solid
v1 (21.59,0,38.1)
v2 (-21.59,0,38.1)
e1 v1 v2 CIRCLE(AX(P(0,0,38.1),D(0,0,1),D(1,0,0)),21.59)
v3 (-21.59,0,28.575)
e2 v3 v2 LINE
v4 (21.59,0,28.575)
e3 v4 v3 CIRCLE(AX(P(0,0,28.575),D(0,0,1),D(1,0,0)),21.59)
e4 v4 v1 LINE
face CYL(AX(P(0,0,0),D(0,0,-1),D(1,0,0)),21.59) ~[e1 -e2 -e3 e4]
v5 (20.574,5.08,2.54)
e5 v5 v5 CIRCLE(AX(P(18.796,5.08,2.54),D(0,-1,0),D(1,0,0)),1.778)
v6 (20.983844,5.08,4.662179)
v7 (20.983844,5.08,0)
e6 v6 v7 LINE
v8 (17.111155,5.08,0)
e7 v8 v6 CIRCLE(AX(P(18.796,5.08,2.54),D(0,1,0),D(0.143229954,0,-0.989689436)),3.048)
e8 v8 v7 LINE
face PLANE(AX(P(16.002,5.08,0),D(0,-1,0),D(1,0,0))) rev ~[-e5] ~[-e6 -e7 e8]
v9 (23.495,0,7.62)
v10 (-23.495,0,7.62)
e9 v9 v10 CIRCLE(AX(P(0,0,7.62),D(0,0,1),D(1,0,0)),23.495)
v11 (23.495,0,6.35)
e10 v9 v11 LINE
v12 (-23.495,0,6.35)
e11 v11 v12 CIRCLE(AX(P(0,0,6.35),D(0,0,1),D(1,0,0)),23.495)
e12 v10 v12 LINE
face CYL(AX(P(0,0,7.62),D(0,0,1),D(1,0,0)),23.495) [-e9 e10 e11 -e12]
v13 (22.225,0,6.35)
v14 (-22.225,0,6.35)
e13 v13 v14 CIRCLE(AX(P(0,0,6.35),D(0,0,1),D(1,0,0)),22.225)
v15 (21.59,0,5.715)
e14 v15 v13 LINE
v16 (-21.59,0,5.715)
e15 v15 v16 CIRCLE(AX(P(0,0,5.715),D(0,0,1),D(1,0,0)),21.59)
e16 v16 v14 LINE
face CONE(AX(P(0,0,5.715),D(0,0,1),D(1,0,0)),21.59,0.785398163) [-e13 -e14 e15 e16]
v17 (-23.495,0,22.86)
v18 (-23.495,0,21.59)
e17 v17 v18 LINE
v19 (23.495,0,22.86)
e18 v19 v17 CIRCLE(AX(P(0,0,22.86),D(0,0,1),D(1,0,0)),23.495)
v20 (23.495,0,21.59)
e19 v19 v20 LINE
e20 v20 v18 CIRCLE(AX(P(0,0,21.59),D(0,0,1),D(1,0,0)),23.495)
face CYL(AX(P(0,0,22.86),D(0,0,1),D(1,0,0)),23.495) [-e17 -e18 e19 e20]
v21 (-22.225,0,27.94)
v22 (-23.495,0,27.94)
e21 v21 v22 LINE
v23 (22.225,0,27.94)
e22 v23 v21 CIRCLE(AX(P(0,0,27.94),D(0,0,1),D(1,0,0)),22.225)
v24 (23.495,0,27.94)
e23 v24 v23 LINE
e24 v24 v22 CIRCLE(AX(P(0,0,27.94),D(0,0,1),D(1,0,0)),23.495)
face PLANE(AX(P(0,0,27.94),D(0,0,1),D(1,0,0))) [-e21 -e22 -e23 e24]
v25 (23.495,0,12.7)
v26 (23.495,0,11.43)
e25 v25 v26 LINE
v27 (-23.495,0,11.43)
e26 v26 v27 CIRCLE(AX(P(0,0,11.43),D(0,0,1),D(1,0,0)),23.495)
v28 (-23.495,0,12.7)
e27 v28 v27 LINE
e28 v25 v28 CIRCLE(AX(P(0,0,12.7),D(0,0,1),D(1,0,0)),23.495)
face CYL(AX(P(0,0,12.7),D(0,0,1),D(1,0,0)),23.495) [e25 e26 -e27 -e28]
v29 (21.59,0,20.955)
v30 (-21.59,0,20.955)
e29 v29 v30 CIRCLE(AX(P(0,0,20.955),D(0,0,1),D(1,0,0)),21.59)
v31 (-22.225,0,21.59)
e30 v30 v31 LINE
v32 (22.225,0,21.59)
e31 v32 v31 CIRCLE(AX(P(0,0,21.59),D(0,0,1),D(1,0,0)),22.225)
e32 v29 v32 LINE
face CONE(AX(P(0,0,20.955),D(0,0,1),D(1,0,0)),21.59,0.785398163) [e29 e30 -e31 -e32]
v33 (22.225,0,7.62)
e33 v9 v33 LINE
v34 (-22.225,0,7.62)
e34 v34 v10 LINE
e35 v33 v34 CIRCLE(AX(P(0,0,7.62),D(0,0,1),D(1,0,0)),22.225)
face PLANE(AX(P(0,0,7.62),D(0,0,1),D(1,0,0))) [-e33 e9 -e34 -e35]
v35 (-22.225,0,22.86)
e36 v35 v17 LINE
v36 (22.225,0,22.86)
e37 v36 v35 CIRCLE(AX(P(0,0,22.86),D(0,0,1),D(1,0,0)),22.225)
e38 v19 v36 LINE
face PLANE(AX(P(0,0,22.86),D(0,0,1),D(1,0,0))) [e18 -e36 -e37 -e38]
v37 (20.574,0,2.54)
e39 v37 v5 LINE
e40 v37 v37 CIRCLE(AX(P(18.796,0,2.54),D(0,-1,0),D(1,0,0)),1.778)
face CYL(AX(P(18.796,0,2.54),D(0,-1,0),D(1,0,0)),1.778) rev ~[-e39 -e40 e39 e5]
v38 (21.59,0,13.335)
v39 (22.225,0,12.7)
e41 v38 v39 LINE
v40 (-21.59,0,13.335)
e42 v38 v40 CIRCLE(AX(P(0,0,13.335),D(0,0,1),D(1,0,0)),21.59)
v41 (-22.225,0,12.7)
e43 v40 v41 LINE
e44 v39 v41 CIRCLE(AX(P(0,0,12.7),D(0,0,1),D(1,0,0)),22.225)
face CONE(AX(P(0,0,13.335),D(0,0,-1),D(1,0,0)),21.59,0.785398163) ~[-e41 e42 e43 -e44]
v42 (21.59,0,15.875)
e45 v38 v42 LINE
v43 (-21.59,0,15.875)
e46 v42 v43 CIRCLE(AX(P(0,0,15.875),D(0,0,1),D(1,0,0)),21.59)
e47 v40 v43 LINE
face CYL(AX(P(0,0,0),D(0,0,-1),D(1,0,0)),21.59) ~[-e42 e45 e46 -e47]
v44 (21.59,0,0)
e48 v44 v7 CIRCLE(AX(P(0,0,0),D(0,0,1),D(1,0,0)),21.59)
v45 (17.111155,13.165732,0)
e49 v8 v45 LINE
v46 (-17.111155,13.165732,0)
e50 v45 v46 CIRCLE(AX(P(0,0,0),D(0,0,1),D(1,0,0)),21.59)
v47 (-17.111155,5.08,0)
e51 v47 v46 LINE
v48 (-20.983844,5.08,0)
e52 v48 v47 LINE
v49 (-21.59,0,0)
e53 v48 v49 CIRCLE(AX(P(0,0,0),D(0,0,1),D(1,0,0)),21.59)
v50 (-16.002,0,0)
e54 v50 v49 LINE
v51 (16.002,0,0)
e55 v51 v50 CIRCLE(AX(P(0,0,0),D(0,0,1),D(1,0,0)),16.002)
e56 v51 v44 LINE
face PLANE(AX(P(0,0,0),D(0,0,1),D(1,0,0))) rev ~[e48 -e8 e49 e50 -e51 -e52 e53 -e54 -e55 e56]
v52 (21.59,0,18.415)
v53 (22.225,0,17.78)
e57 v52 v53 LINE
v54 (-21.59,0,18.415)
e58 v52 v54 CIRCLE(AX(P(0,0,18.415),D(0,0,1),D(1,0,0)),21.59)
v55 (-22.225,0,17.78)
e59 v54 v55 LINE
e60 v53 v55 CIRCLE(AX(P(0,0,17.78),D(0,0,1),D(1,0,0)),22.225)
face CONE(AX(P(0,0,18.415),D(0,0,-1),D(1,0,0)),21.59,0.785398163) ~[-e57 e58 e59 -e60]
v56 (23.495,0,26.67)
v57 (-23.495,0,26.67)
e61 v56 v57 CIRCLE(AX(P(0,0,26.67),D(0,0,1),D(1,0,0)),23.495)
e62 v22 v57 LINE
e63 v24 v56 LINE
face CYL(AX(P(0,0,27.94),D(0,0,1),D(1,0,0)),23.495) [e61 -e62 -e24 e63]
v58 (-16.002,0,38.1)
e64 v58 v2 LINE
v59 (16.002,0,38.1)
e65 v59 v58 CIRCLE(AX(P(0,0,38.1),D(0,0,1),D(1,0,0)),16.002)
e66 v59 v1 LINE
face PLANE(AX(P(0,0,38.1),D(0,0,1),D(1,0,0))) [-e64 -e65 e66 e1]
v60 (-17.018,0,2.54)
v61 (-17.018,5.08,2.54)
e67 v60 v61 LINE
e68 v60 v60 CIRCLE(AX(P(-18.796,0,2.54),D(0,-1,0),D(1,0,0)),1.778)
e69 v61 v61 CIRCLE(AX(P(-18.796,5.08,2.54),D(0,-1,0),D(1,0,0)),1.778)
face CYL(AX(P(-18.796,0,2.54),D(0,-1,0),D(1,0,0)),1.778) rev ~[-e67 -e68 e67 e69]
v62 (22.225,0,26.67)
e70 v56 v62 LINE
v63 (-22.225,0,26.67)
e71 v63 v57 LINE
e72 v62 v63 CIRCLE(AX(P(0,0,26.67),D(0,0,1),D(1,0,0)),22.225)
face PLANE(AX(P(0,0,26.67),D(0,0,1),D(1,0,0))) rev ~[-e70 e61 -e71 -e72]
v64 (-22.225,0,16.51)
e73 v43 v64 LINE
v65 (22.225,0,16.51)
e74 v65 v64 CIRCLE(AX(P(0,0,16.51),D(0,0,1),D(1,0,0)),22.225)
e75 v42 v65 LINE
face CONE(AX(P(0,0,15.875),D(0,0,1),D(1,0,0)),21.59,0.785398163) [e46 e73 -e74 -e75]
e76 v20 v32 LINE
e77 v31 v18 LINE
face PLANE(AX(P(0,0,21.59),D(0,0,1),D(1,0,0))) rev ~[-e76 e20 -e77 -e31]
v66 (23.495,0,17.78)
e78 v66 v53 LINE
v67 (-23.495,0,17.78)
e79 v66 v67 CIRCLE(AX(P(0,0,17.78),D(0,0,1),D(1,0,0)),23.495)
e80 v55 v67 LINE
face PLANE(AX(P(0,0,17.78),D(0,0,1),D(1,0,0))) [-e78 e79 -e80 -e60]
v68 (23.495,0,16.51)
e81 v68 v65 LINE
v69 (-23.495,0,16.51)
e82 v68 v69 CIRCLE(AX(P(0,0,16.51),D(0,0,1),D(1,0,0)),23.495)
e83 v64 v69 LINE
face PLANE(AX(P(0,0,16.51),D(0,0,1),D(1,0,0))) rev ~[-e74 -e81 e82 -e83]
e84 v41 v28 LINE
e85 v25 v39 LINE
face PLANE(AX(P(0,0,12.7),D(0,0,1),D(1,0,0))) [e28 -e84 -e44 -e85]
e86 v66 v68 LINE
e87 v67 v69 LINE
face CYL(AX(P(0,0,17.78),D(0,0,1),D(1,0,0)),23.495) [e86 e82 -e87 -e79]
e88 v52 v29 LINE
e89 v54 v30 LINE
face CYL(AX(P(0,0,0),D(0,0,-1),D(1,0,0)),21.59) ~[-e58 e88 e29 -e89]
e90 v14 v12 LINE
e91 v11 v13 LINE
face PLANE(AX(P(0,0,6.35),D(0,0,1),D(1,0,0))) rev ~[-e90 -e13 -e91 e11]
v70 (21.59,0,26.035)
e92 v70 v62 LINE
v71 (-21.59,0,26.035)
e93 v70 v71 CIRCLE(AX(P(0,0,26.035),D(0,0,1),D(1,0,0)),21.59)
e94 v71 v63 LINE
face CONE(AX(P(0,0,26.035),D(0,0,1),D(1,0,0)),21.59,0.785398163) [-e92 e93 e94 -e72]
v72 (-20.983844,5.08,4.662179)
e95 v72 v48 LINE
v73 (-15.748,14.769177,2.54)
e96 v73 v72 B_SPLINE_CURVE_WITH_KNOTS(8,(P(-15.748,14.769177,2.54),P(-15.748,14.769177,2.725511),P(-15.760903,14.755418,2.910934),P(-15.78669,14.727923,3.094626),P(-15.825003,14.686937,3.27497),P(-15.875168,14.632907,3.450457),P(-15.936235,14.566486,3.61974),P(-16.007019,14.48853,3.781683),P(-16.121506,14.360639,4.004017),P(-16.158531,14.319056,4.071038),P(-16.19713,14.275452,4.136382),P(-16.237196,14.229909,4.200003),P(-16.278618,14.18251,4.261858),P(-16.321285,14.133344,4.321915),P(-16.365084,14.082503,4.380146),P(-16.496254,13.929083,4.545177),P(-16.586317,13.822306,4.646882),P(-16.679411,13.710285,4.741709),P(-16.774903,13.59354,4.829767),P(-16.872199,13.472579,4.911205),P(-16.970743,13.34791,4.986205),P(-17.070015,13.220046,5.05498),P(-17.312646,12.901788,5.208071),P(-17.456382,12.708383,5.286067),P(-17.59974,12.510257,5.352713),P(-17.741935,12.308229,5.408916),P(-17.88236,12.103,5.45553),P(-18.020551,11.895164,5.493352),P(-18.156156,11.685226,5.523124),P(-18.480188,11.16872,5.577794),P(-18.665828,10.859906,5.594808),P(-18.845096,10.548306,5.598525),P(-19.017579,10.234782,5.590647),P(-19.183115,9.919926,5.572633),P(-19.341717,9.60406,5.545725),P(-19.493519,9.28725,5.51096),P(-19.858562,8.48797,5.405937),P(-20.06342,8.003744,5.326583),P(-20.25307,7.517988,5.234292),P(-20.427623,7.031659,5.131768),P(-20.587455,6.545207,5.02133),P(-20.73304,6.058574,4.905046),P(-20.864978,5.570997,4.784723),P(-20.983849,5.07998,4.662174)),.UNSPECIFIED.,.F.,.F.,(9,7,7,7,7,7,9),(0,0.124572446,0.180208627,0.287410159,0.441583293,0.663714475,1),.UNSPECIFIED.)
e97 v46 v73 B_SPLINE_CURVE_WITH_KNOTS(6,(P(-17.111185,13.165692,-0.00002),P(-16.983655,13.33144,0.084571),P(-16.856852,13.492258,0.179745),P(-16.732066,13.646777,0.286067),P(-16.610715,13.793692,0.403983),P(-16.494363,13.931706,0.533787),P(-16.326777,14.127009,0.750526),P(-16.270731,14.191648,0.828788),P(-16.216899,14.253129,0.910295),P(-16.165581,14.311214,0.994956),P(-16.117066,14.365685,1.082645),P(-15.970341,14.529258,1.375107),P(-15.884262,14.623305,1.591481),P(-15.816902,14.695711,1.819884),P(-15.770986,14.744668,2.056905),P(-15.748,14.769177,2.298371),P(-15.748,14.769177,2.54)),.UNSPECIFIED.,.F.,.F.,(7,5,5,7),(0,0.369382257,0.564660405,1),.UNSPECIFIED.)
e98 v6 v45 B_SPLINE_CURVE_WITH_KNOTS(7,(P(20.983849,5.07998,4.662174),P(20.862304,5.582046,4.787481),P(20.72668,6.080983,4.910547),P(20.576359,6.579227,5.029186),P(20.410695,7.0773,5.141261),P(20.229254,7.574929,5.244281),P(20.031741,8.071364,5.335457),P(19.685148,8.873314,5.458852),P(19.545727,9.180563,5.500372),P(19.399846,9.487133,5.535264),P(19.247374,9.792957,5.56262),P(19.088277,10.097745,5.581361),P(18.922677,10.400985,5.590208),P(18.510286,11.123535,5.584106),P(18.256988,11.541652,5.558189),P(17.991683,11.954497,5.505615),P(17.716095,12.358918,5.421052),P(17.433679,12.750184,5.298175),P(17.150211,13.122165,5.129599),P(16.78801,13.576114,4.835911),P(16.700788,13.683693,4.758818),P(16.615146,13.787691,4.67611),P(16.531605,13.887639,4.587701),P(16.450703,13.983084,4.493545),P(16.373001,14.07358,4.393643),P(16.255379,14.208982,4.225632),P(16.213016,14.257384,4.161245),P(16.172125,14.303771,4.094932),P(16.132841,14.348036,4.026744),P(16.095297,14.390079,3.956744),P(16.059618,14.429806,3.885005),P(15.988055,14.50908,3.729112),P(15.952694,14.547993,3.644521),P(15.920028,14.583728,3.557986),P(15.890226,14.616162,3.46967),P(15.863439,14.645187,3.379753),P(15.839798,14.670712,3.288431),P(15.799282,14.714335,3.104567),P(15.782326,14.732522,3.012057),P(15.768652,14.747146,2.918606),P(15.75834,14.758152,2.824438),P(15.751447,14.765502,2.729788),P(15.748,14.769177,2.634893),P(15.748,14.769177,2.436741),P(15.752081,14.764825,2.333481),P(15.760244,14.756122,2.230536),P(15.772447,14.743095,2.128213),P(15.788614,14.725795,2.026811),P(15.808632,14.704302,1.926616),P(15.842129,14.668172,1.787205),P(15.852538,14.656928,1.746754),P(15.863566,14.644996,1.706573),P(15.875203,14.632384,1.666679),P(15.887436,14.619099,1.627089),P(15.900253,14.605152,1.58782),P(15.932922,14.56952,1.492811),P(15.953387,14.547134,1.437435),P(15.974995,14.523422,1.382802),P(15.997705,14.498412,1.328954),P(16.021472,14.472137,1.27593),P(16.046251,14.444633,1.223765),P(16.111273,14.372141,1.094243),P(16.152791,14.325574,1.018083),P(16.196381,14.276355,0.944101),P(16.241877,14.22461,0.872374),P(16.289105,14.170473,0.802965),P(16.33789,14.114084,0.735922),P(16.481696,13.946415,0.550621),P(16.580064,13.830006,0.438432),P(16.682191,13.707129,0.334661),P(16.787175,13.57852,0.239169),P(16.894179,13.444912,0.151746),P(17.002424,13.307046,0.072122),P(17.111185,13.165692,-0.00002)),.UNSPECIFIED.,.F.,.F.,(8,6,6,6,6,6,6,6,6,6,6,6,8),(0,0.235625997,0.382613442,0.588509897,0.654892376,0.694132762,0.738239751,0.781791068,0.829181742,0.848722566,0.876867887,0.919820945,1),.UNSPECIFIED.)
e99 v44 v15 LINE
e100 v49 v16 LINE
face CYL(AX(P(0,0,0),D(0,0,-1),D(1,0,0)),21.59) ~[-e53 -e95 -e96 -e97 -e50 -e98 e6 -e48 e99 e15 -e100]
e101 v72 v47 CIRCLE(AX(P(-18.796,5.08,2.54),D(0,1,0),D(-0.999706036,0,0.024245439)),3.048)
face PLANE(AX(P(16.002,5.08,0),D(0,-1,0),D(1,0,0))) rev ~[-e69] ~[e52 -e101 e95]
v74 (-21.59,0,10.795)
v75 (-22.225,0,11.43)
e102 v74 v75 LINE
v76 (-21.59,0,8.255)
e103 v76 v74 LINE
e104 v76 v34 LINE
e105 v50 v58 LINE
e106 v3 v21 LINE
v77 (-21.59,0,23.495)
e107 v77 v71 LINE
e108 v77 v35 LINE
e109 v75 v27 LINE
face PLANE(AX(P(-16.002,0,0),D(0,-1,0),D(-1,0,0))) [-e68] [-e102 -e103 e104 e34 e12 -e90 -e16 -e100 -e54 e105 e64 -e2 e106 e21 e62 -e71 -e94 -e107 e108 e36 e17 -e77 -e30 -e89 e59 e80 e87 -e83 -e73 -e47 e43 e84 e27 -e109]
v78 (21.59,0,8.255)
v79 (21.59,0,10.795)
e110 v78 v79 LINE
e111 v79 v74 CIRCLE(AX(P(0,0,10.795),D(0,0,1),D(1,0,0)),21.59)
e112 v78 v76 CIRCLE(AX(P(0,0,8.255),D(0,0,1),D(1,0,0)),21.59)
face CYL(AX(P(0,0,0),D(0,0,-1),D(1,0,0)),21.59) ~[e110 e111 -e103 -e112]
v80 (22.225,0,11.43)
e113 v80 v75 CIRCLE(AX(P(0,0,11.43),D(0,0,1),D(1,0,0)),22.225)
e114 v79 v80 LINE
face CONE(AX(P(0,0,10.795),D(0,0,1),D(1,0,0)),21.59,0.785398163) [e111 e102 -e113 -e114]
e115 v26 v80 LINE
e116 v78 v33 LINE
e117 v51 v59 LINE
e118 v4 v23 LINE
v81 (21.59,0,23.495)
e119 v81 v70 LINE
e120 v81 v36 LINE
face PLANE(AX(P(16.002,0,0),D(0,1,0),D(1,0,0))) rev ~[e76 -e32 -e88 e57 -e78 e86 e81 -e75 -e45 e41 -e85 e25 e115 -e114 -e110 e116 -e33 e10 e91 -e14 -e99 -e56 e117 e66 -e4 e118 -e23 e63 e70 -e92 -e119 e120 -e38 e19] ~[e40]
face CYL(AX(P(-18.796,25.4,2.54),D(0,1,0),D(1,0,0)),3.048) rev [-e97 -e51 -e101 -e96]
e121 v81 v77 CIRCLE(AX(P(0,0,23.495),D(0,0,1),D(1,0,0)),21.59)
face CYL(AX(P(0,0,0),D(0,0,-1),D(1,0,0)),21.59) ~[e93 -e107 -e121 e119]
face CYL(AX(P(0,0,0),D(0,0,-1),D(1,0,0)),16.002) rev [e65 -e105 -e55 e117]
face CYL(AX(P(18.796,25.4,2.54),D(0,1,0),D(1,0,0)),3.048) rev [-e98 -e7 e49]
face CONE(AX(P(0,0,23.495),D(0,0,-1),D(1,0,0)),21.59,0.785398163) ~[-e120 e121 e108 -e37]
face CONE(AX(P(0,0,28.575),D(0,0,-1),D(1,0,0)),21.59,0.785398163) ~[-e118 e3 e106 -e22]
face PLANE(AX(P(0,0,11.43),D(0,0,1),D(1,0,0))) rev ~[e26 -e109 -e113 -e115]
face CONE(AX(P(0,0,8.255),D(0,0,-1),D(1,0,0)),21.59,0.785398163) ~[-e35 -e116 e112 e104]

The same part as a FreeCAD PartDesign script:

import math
import FreeCAD as App
import Part
import Sketcher

V = App.Vector
Q = App.Units.Quantity


def edges_at(feature, points):
    """Names of the edges that pass closest to the given points."""
    edges = feature.Shape.Edges
    near = lambda p: min(range(len(edges)), key=lambda i: edges[i].distToShape(Part.Vertex(*p))[0])
    return sorted({f"Edge{near(p) + 1}" for p in points})

doc = App.newDocument("Part")
body = doc.addObject("PartDesign::Body", "Body")

sketch1 = body.newObject("Sketcher::SketchObject", "Sketch")
sketch1.AttachmentSupport = (doc.getObject("XY_Plane"), [""])
sketch1.MapMode = "FlatFace"
sketch1.addGeometry(Part.ArcOfCircle(Part.Circle(V(0, 0, 0), V(0, 0, 1), 16), math.radians(0), math.radians(180)), False)
sketch1.addGeometry(Part.LineSegment(V(16, 0, 0), V(22, 0, 0)), False)
sketch1.addGeometry(Part.ArcOfCircle(Part.Circle(V(0, 0, 0), V(0, 0, 1), 22), math.radians(0), math.radians(180)), False)
sketch1.addGeometry(Part.LineSegment(V(-22, 0, 0), V(-16, 0, 0)), False)
sketch1.addConstraint(Sketcher.Constraint("Coincident", 0, 1, 1, 1))
sketch1.addConstraint(Sketcher.Constraint("Coincident", 1, 2, 2, 1))
sketch1.addConstraint(Sketcher.Constraint("Coincident", 2, 2, 3, 1))
sketch1.addConstraint(Sketcher.Constraint("Coincident", 3, 2, 0, 2))
sketch1.addConstraint(Sketcher.Constraint("Horizontal", 1))
sketch1.addConstraint(Sketcher.Constraint("Horizontal", 3))
sketch1.addConstraint(Sketcher.Constraint("Coincident", 0, 3, -1, 1))
sketch1.addConstraint(Sketcher.Constraint("Coincident", 2, 3, -1, 1))
sketch1.addConstraint(Sketcher.Constraint("PointOnObject", 0, 1, -1))
sketch1.addConstraint(Sketcher.Constraint("PointOnObject", 2, 2, -1))
sketch1.addConstraint(Sketcher.Constraint("Radius", 0, Q("0.63 in")))
sketch1.addConstraint(Sketcher.Constraint("Radius", 2, Q("0.85 in")))
pad1 = body.newObject("PartDesign::Pad", "Pad")
pad1.Profile = sketch1
pad1.Length = Q("1.5 in")

sketch2 = body.newObject("Sketcher::SketchObject", "Sketch001")
sketch2.AttachmentSupport = (doc.getObject("XY_Plane"), [""])
sketch2.MapMode = "FlatFace"
sketch2.AttachmentOffset = App.Placement(V(0, 0, 1.1 * 25.4), App.Rotation())
sketch2.addGeometry(Part.ArcOfCircle(Part.Circle(V(0, 0, 0), V(0, 0, 1), 21.6), math.radians(0), math.radians(180)), False)
sketch2.addGeometry(Part.LineSegment(V(21.6, 0, 0), V(23.5, 0, 0)), False)
sketch2.addGeometry(Part.ArcOfCircle(Part.Circle(V(0, 0, 0), V(0, 0, 1), 23.5), math.radians(0), math.radians(180)), False)
sketch2.addGeometry(Part.LineSegment(V(-23.5, 0, 0), V(-21.6, 0, 0)), False)
sketch2.addConstraint(Sketcher.Constraint("Coincident", 0, 1, 1, 1))
sketch2.addConstraint(Sketcher.Constraint("Coincident", 1, 2, 2, 1))
sketch2.addConstraint(Sketcher.Constraint("Coincident", 2, 2, 3, 1))
sketch2.addConstraint(Sketcher.Constraint("Coincident", 3, 2, 0, 2))
sketch2.addConstraint(Sketcher.Constraint("Horizontal", 1))
sketch2.addConstraint(Sketcher.Constraint("Horizontal", 3))
sketch2.addConstraint(Sketcher.Constraint("Coincident", 0, 3, -1, 1))
sketch2.addConstraint(Sketcher.Constraint("Coincident", 2, 3, -1, 1))
sketch2.addConstraint(Sketcher.Constraint("PointOnObject", 0, 1, -1))
sketch2.addConstraint(Sketcher.Constraint("PointOnObject", 2, 2, -1))
sketch2.addConstraint(Sketcher.Constraint("DistanceX", 1, 1, 1, 2, Q("0.075 in")))
sketch2.addConstraint(Sketcher.Constraint("Radius", 0, Q("0.85 in")))
pad2 = body.newObject("PartDesign::Pad", "Pad001")
pad2.Profile = sketch2
pad2.Length = Q("0.05 in")
pad2.Reversed = True
doc.recompute()

chamfer = body.newObject("PartDesign::Chamfer", "Chamfer")
chamfer.Base = (pad2, edges_at(pad2, [(0, 21.59, 27.94), (0, 21.59, 26.67)]))
chamfer.Size = Q("0.025 in")
doc.recompute()

linearpattern = body.newObject("PartDesign::LinearPattern", "LinearPattern")
linearpattern.Originals = [pad2, chamfer]
linearpattern.Direction = (doc.getObject("Z_Axis"), [""])
linearpattern.Mode = "offset"
linearpattern.Offset = Q("0.2 in")
linearpattern.Occurrences = 5
linearpattern.Reversed = True
body.Tip = linearpattern

sketch3 = body.newObject("Sketcher::SketchObject", "Sketch002")
sketch3.AttachmentSupport = (doc.getObject("XZ_Plane"), [""])
sketch3.MapMode = "FlatFace"
sketch3.addGeometry(Part.Circle(V(18.8, 2.5, 0), V(0, 0, 1), 1.8), False)
sketch3.addGeometry(Part.Circle(V(-18.8, 2.5, 0), V(0, 0, 1), 1.8), False)
sketch3.addConstraint(Sketcher.Constraint("Equal", 0, 1))
sketch3.addConstraint(Sketcher.Constraint("Symmetric", 0, 3, 1, 3, -2))
sketch3.addConstraint(Sketcher.Constraint("Diameter", 0, Q("0.14 in")))
sketch3.addConstraint(Sketcher.Constraint("DistanceY", -1, 1, 0, 3, Q("0.1 in")))
sketch3.addConstraint(Sketcher.Constraint("DistanceX", -1, 1, 0, 3, Q("0.74 in")))
pocket1 = body.newObject("PartDesign::Pocket", "Pocket")
pocket1.Profile = sketch3
pocket1.Type = "ThroughAll"

sketch4 = body.newObject("Sketcher::SketchObject", "Sketch003")
sketch4.AttachmentSupport = (doc.getObject("XZ_Plane"), [""])
sketch4.MapMode = "FlatFace"
sketch4.AttachmentOffset = App.Placement(V(0, 0, -1 * 25.4), App.Rotation())
sketch4.addGeometry(Part.ArcOfCircle(Part.Circle(V(18.796, 2.54, 0), V(0, 0, 1), 3.048), math.radians(1.389297), math.radians(278.234793)), False)
sketch4.addGeometry(Part.LineSegment(V(19.232565, -0.476573, 0), V(23.3955, -0.1769, 0)), False)
sketch4.addGeometry(Part.LineSegment(V(23.3955, -0.1769, 0), V(22.0095, 2.6942, 0)), False)
sketch4.addGeometry(Part.LineSegment(V(22.0095, 2.6942, 0), V(21.8431, 2.6139, 0)), False)
sketch4.addGeometry(Part.ArcOfCircle(Part.Circle(V(-18.796, 2.54, 0), V(0, 0, 1), 3.048), math.radians(-89.992481), math.radians(178.610703)), False)
sketch4.addGeometry(Part.LineSegment(V(-21.8431, 2.6139, 0), V(-23.8483, 2.0729, 0)), False)
sketch4.addGeometry(Part.LineSegment(V(-23.8483, 2.0729, 0), V(-22.8318, -2.6207, 0)), False)
sketch4.addGeometry(Part.LineSegment(V(-22.8318, -2.6207, 0), V(-18.7956, -3.1659, 0)), False)
sketch4.addGeometry(Part.LineSegment(V(-18.7956, -3.1659, 0), V(-18.7956, -0.508, 0)), False)
sketch4.addConstraint(Sketcher.Constraint("Coincident", 0, 2, 1, 1))
sketch4.addConstraint(Sketcher.Constraint("Coincident", 1, 2, 2, 1))
sketch4.addConstraint(Sketcher.Constraint("Coincident", 2, 2, 3, 1))
sketch4.addConstraint(Sketcher.Constraint("Coincident", 3, 2, 0, 1))
sketch4.addConstraint(Sketcher.Constraint("Coincident", 4, 2, 5, 1))
sketch4.addConstraint(Sketcher.Constraint("Coincident", 5, 2, 6, 1))
sketch4.addConstraint(Sketcher.Constraint("Coincident", 6, 2, 7, 1))
sketch4.addConstraint(Sketcher.Constraint("Coincident", 7, 2, 8, 1))
sketch4.addConstraint(Sketcher.Constraint("Coincident", 8, 2, 4, 1))
sketch4.addConstraint(Sketcher.Constraint("Vertical", 8))
sketch4.addConstraint(Sketcher.Constraint("Radius", 0, Q("0.12 in")))
sketch4.addConstraint(Sketcher.Constraint("Radius", 4, Q("0.12 in")))
sketch4.addConstraint(Sketcher.Constraint("DistanceY", -1, 1, 0, 3, Q("0.1 in")))
sketch4.addConstraint(Sketcher.Constraint("DistanceY", -1, 1, 4, 3, Q("0.1 in")))
sketch4.addConstraint(Sketcher.Constraint("DistanceX", -1, 1, 0, 3, Q("0.74 in")))
sketch4.addConstraint(Sketcher.Constraint("DistanceX", 4, 3, -1, 1, Q("0.74 in")))
sketch4.addConstraint(Sketcher.Constraint("DistanceY", 8, 1, 8, 2, 2.658))
sketch4.addConstraint(Sketcher.Constraint("DistanceY", -1, 1, 3, 2, Q("0.1029 in")))
sketch4.addConstraint(Sketcher.Constraint("DistanceY", -1, 1, 4, 2, Q("0.1029 in")))
sketch4.addConstraint(Sketcher.Constraint("DistanceX", 5, 2, -1, 1, Q("0.9389 in")))
sketch4.addConstraint(Sketcher.Constraint("DistanceY", -1, 1, 5, 2, Q("0.0816 in")))
sketch4.addConstraint(Sketcher.Constraint("DistanceX", 6, 2, -1, 1, Q("0.8989 in")))
sketch4.addConstraint(Sketcher.Constraint("DistanceX", 0, 2, 1, 2, Q("0.1639 in")))
sketch4.addConstraint(Sketcher.Constraint("DistanceY", 0, 2, 1, 2, Q("0.0118 in")))
sketch4.addConstraint(Sketcher.Constraint("DistanceX", 5, 2, 0, 2, Q("1.6961 in")))
sketch4.addConstraint(Sketcher.Constraint("DistanceX", 6, 2, 7, 2, Q("0.1589 in")))
sketch4.addConstraint(Sketcher.Constraint("Distance", 2, 3.1881))
sketch4.addConstraint(Sketcher.Constraint("Distance", 3, 0.1848))
sketch4.addConstraint(Sketcher.Constraint("Distance", 6, 4.8024))
pocket2 = body.newObject("PartDesign::Pocket", "Pocket001")
pocket2.Profile = sketch4
pocket2.Length = Q("0.8 in")
pocket2.Reversed = True

doc.recompute()
